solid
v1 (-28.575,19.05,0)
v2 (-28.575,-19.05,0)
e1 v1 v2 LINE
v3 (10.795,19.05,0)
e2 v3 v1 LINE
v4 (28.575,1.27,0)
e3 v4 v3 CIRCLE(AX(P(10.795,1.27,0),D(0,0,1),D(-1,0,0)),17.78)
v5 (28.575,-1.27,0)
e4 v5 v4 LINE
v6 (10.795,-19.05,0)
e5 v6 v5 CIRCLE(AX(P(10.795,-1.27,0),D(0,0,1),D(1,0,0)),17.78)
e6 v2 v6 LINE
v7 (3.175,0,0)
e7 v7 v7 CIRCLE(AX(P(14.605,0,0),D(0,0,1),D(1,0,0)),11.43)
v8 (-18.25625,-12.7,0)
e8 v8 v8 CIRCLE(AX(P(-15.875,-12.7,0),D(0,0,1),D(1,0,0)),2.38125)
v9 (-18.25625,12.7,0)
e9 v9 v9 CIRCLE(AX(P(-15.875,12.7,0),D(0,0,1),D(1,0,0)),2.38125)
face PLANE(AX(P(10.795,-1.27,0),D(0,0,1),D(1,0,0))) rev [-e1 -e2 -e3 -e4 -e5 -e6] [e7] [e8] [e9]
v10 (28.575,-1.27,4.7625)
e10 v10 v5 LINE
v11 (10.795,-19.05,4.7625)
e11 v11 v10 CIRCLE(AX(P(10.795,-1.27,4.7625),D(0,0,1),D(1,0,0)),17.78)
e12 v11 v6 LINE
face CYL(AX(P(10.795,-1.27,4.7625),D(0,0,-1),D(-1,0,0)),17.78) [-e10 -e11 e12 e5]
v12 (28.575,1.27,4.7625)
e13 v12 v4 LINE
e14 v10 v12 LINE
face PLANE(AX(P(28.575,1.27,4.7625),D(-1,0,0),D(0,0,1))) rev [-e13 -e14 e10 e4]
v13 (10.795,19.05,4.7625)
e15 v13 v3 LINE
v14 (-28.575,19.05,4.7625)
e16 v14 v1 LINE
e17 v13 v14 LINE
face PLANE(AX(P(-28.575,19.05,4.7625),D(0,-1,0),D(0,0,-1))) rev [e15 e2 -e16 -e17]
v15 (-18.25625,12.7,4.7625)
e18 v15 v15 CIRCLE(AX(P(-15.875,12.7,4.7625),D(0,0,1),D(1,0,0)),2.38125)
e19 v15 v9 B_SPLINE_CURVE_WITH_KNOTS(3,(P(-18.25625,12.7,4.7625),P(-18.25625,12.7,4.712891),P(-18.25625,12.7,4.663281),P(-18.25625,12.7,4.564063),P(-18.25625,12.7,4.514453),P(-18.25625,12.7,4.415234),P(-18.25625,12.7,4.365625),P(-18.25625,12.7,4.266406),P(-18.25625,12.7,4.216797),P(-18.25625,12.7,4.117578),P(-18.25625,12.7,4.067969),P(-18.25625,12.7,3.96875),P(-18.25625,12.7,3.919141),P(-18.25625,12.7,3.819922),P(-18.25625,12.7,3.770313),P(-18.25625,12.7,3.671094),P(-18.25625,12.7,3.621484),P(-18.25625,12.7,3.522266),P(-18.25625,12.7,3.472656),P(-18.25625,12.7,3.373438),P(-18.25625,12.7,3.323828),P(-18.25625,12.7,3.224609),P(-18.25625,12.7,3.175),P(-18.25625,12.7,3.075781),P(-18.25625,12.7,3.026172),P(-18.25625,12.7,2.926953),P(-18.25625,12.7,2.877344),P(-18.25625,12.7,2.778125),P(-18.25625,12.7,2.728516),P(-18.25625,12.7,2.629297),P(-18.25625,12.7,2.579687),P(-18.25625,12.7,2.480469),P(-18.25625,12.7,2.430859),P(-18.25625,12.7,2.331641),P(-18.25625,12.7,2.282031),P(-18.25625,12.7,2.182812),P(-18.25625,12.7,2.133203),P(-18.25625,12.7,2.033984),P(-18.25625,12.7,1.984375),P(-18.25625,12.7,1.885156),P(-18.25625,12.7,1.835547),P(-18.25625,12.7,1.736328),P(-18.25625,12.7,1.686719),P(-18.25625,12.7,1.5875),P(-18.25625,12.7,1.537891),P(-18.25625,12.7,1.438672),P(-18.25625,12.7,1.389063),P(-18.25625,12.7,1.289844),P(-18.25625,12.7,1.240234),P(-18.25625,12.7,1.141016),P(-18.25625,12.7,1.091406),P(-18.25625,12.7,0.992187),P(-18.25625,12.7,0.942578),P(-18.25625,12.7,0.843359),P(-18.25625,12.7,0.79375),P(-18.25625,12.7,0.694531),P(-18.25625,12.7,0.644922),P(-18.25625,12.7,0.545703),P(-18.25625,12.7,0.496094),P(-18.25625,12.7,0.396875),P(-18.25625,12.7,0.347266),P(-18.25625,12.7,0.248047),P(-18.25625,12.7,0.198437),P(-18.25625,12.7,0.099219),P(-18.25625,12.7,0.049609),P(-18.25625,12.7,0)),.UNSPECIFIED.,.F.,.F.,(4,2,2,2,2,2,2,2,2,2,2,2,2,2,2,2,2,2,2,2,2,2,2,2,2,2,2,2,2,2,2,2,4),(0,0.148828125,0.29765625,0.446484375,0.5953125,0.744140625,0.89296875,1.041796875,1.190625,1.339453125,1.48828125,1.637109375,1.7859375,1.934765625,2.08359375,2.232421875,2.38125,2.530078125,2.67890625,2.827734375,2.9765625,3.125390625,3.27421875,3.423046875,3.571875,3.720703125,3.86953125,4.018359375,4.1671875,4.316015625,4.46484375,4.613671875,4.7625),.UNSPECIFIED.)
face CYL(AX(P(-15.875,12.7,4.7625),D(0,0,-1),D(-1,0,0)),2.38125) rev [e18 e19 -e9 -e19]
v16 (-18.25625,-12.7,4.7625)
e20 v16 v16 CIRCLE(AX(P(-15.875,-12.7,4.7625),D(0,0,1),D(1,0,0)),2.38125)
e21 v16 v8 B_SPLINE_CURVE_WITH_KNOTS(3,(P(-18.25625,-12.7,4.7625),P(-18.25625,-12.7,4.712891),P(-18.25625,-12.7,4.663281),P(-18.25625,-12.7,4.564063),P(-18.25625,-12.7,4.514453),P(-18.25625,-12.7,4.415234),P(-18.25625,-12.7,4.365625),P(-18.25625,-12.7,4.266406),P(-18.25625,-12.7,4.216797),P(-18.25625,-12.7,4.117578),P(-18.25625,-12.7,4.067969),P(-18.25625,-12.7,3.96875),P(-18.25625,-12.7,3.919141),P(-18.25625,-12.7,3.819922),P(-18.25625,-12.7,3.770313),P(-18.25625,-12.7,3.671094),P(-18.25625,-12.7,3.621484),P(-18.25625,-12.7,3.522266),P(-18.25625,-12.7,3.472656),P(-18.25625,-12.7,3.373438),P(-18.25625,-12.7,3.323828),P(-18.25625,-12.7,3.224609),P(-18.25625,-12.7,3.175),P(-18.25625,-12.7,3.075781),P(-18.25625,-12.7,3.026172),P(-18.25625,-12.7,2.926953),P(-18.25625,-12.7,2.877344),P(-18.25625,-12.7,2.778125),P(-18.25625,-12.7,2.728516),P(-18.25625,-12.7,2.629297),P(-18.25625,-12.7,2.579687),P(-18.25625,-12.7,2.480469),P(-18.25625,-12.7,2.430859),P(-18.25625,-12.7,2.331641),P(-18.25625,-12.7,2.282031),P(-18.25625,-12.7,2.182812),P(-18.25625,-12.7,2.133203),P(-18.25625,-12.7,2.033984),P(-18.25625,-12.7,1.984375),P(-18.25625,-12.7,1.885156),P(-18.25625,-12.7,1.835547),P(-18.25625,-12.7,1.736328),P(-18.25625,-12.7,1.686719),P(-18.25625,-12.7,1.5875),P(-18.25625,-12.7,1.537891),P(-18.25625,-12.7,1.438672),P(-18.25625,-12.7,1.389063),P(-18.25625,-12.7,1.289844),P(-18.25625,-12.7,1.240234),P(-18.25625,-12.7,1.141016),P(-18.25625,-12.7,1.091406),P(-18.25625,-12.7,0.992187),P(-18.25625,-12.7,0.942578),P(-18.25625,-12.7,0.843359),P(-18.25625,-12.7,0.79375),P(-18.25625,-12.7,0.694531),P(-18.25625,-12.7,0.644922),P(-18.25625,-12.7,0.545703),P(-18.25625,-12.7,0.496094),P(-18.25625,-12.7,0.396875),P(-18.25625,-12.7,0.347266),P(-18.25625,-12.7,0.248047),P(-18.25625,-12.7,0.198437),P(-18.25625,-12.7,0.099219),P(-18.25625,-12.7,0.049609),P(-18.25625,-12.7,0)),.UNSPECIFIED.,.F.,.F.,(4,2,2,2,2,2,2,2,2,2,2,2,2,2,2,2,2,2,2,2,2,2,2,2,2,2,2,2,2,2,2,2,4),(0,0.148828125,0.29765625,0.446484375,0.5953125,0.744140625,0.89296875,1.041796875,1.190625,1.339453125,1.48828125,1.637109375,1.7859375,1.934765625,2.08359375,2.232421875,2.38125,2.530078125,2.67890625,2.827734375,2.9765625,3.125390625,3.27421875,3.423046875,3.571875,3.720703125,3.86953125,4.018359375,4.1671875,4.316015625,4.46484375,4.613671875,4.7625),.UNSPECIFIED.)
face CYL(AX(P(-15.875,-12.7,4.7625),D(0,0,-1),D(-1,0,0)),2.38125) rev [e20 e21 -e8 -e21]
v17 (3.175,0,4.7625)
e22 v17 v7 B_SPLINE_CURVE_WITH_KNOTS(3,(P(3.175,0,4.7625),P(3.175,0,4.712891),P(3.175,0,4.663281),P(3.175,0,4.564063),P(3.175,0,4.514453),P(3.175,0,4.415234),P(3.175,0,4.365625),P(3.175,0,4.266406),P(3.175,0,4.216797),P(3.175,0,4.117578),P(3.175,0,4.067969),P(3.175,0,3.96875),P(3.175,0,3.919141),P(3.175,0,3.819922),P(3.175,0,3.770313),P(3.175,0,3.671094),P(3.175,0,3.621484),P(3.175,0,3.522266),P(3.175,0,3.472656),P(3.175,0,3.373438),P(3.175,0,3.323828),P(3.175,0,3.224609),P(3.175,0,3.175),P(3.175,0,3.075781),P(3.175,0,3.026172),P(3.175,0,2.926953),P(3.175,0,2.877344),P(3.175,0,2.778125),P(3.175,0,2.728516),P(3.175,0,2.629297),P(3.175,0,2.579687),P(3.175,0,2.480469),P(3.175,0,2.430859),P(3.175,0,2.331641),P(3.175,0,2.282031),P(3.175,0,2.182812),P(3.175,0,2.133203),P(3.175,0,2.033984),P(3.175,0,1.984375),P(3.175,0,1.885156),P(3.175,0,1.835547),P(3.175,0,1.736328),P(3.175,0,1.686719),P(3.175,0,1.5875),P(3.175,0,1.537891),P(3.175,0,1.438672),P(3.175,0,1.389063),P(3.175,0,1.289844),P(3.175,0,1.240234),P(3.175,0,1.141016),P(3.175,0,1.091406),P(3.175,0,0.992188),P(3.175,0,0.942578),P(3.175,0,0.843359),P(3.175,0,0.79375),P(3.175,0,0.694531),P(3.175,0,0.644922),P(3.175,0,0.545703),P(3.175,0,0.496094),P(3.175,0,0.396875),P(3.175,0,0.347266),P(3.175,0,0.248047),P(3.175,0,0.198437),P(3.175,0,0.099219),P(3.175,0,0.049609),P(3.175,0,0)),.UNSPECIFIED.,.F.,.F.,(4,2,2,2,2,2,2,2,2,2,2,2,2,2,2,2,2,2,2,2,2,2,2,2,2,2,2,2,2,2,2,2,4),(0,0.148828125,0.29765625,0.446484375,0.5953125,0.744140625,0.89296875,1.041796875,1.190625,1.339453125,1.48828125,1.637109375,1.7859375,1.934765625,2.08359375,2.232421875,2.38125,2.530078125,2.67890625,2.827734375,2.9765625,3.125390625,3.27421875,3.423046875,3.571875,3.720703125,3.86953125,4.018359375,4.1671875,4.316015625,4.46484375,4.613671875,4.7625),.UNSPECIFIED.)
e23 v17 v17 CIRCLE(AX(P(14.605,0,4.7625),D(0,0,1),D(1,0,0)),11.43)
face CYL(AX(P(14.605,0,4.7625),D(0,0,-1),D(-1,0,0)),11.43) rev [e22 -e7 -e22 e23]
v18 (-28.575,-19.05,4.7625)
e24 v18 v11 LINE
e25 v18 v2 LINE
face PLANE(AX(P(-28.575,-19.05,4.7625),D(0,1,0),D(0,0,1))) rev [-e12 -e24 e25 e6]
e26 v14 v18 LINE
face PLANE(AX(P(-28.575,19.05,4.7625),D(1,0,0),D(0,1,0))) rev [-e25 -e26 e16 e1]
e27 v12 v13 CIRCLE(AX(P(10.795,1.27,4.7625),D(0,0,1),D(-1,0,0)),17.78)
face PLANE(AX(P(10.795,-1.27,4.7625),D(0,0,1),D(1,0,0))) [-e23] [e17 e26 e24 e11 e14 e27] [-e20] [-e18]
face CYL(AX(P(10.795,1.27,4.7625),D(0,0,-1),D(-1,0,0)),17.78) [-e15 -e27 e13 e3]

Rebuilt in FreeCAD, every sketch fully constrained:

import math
import FreeCAD as App
import Part
import Sketcher
Q = App.Units.Quantity

doc = App.newDocument("Part")
params = doc.addObject("Spreadsheet::Sheet", "Params")
for row, (alias, value) in enumerate([
    ("sketch1_diameter", "0.9 in"),
    ("sketch1_radius", "0.7 in"),
    ("sketch1_diameter2", "0.1875 in"),
    ("sketch1_height", "1.5 in"),
    ("sketch1_width", "1.55 in"),
    ("pad1_length", "0.1875 in"),
], start=1):
    params.set(f"A{row}", alias)
    params.set(f"B{row}", "=" + value)
    params.setAlias(f"B{row}", alias)

body = doc.addObject("PartDesign::Body", "Body")

sketch1 = body.newObject("Sketcher::SketchObject", "Sketch")
sketch1.AttachmentSupport = (doc.getObject("XY_Plane"), [""])
sketch1.MapMode = "FlatFace"
sketch1.addGeometry([
    Part.LineSegment(App.Vector(10.8, 19.1, 0), App.Vector(-28.6, 19.1, 0)),
    Part.LineSegment(App.Vector(-28.6, 19.1, 0), App.Vector(-28.6, -19.1, 0)),
    Part.LineSegment(App.Vector(-28.6, -19.1, 0), App.Vector(10.8, -19.1, 0)),
    Part.ArcOfCircle(Part.Circle(App.Vector(10.8, -1.3, 0), App.Vector(0, 0, 1), 17.8), math.radians(-90), math.radians(0)),
    Part.LineSegment(App.Vector(28.6, -1.3, 0), App.Vector(28.6, 1.3, 0)),
    Part.ArcOfCircle(Part.Circle(App.Vector(10.8, 1.3, 0), App.Vector(0, 0, 1), 17.8), math.radians(0), math.radians(90)),
    Part.Circle(App.Vector(-15.9, -12.7, 0), App.Vector(0, 0, 1), 2.4),
    Part.Circle(App.Vector(14.6, 0, 0), App.Vector(0, 0, 1), 11.4),
    Part.Circle(App.Vector(-15.9, 12.7, 0), App.Vector(0, 0, 1), 2.4),
], False)
sketch1.addConstraint([
    Sketcher.Constraint("Coincident", 0, 2, 1, 1),
    Sketcher.Constraint("Coincident", 1, 2, 2, 1),
    Sketcher.Constraint("Tangent", 2, 2, 3, 1),
    Sketcher.Constraint("Tangent", 3, 2, 4, 1),
    Sketcher.Constraint("Tangent", 4, 2, 5, 1),
    Sketcher.Constraint("Tangent", 5, 2, 0, 1),
    Sketcher.Constraint("Horizontal", 0),
    Sketcher.Constraint("Vertical", 1),
    Sketcher.Constraint("Horizontal", 2),
    Sketcher.Constraint("Vertical", 4),
    Sketcher.Constraint("Equal", 3, 5),
    Sketcher.Constraint("Equal", 6, 8),
    Sketcher.Constraint("Symmetric", 6, 3, 8, 3, -1),
    Sketcher.Constraint("PointOnObject", 7, 3, -1),
    Sketcher.Constraint("Diameter", 7, Q("0.9 in")),
    Sketcher.Constraint("Radius", 3, Q("0.7 in")),
    Sketcher.Constraint("Diameter", 6, Q("0.1875 in")),
    Sketcher.Constraint("DistanceY", 1, 2, 1, 1, Q("1.5 in")),
    Sketcher.Constraint("DistanceY", 6, 3, 8, 3, Q("1 in")),
    Sketcher.Constraint("DistanceX", 0, 2, 0, 1, Q("1.55 in")),
    Sketcher.Constraint("DistanceX", 6, 3, 7, 3, Q("1.2 in")),
    Sketcher.Constraint("DistanceX", 0, 2, 8, 3, Q("0.5 in")),
    Sketcher.Constraint("DistanceY", 3, 3, -1, 1, Q("0.05 in")),
    Sketcher.Constraint("DistanceX", -1, 1, 3, 3, Q("0.425 in")),
])
sketch1.setExpression("Constraints[14]", "Params.sketch1_diameter")
sketch1.setExpression("Constraints[15]", "Params.sketch1_radius")
sketch1.setExpression("Constraints[16]", "Params.sketch1_diameter2")
sketch1.setExpression("Constraints[17]", "Params.sketch1_height")
sketch1.setExpression("Constraints[19]", "Params.sketch1_width")
pad1 = body.newObject("PartDesign::Pad", "Pad")
pad1.Profile = sketch1
pad1.setExpression("Length", "Params.pad1_length")

doc.recompute()
